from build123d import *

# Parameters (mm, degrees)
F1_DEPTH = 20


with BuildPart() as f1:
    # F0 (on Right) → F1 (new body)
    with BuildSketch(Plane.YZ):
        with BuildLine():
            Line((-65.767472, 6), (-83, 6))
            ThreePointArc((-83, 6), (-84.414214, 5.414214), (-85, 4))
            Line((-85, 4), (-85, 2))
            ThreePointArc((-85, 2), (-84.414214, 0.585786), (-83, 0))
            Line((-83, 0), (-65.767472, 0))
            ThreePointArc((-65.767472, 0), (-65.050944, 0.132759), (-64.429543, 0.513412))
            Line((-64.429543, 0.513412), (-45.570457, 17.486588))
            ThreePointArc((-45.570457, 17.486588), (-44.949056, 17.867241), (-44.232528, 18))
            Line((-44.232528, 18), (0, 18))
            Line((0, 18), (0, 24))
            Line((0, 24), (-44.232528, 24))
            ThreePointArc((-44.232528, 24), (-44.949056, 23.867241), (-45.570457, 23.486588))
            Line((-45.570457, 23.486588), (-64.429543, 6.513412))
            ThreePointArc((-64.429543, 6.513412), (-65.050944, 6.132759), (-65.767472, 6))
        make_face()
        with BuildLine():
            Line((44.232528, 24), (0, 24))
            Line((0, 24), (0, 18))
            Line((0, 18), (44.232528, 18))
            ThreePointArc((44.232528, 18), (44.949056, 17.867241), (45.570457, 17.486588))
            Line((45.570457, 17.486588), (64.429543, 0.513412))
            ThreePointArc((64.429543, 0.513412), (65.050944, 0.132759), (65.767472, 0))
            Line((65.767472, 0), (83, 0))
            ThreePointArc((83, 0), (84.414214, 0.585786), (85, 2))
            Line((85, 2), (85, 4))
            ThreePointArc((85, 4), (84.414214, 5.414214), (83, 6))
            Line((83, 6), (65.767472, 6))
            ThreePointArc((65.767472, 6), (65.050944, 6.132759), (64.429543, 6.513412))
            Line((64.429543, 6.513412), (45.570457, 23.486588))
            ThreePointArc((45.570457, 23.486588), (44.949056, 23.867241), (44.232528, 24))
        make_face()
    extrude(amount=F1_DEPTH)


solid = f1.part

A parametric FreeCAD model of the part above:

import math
import FreeCAD as App
import Part
import Sketcher
Q = App.Units.Quantity

doc = App.newDocument("Part")
body = doc.addObject("PartDesign::Body", "Body")

# Sketch on YZ plane
sketch1 = doc.addObject("Sketcher::SketchObject", "Sketch")
body.addObject(sketch1)
sketch1.AttachmentSupport = (doc.YZ_Plane, [""])
sketch1.MapMode = "FlatFace"
sketch1.addGeometry(Part.LineSegment(App.Vector(-65.8, 6, 0), App.Vector(-83, 6, 0)), False)
sketch1.addGeometry(Part.ArcOfCircle(Part.Circle(App.Vector(-83, 4, 0), App.Vector(0, 0, 1), 2), math.radians(90), math.radians(180)), False)
sketch1.addGeometry(Part.LineSegment(App.Vector(-85, 4, 0), App.Vector(-85, 2, 0)), False)
sketch1.addGeometry(Part.ArcOfCircle(Part.Circle(App.Vector(-83, 2, 0), App.Vector(0, 0, 1), 2), math.radians(180), math.radians(270)), False)
sketch1.addGeometry(Part.LineSegment(App.Vector(-83, 0, 0), App.Vector(-65.8, 0, 0)), False)
sketch1.addGeometry(Part.ArcOfCircle(Part.Circle(App.Vector(-65.8, 2, 0), App.Vector(0, 0, 1), 2), math.radians(-90), math.radians(-48)), False)
sketch1.addGeometry(Part.LineSegment(App.Vector(-64.4, 0.5, 0), App.Vector(-45.6, 17.5, 0)), False)
sketch1.addGeometry(Part.ArcOfCircle(Part.Circle(App.Vector(-44.2, 16, 0), App.Vector(0, 0, 1), 2), math.radians(90), math.radians(132)), False)
sketch1.addGeometry(Part.LineSegment(App.Vector(-44.2, 18, 0), App.Vector(44.2, 18, 0)), False)
sketch1.addGeometry(Part.ArcOfCircle(Part.Circle(App.Vector(44.2, 16, 0), App.Vector(0, 0, 1), 2), math.radians(48), math.radians(90)), False)
sketch1.addGeometry(Part.LineSegment(App.Vector(45.6, 17.5, 0), App.Vector(64.4, 0.5, 0)), False)
sketch1.addGeometry(Part.ArcOfCircle(Part.Circle(App.Vector(65.8, 2, 0), App.Vector(0, 0, 1), 2), math.radians(-132), math.radians(-90)), False)
sketch1.addGeometry(Part.LineSegment(App.Vector(65.8, 0, 0), App.Vector(83, 0, 0)), False)
sketch1.addGeometry(Part.ArcOfCircle(Part.Circle(App.Vector(83, 2, 0), App.Vector(0, 0, 1), 2), math.radians(-90), math.radians(0)), False)
sketch1.addGeometry(Part.LineSegment(App.Vector(85, 2, 0), App.Vector(85, 4, 0)), False)
sketch1.addGeometry(Part.ArcOfCircle(Part.Circle(App.Vector(83, 4, 0), App.Vector(0, 0, 1), 2), math.radians(0), math.radians(90)), False)
sketch1.addGeometry(Part.LineSegment(App.Vector(83, 6, 0), App.Vector(65.8, 6, 0)), False)
sketch1.addGeometry(Part.ArcOfCircle(Part.Circle(App.Vector(65.8, 8, 0), App.Vector(0, 0, 1), 2), math.radians(-132), math.radians(-90)), False)
sketch1.addGeometry(Part.LineSegment(App.Vector(64.4, 6.5, 0), App.Vector(45.6, 23.5, 0)), False)
sketch1.addGeometry(Part.ArcOfCircle(Part.Circle(App.Vector(44.2, 22, 0), App.Vector(0, 0, 1), 2), math.radians(48), math.radians(90)), False)
sketch1.addGeometry(Part.LineSegment(App.Vector(44.2, 24, 0), App.Vector(-44.2, 24, 0)), False)
sketch1.addGeometry(Part.ArcOfCircle(Part.Circle(App.Vector(-44.2, 22, 0), App.Vector(0, 0, 1), 2), math.radians(90), math.radians(132)), False)
sketch1.addGeometry(Part.LineSegment(App.Vector(-45.6, 23.5, 0), App.Vector(-64.4, 6.5, 0)), False)
sketch1.addGeometry(Part.ArcOfCircle(Part.Circle(App.Vector(-65.8, 8, 0), App.Vector(0, 0, 1), 2), math.radians(-90), math.radians(-48)), False)
sketch1.addConstraint(Sketcher.Constraint("Tangent", 0, 2, 1, 1))
sketch1.addConstraint(Sketcher.Constraint("Tangent", 1, 2, 2, 1))
sketch1.addConstraint(Sketcher.Constraint("Tangent", 2, 2, 3, 1))
sketch1.addConstraint(Sketcher.Constraint("Tangent", 3, 2, 4, 1))
sketch1.addConstraint(Sketcher.Constraint("Tangent", 4, 2, 5, 1))
sketch1.addConstraint(Sketcher.Constraint("Tangent", 5, 2, 6, 1))
sketch1.addConstraint(Sketcher.Constraint("Tangent", 6, 2, 7, 2))
sketch1.addConstraint(Sketcher.Constraint("Tangent", 7, 1, 8, 1))
sketch1.addConstraint(Sketcher.Constraint("Tangent", 8, 2, 9, 2))
sketch1.addConstraint(Sketcher.Constraint("Tangent", 9, 1, 10, 1))
sketch1.addConstraint(Sketcher.Constraint("Tangent", 10, 2, 11, 1))
sketch1.addConstraint(Sketcher.Constraint("Tangent", 11, 2, 12, 1))
sketch1.addConstraint(Sketcher.Constraint("Tangent", 12, 2, 13, 1))
sketch1.addConstraint(Sketcher.Constraint("Tangent", 13, 2, 14, 1))
sketch1.addConstraint(Sketcher.Constraint("Tangent", 14, 2, 15, 1))
sketch1.addConstraint(Sketcher.Constraint("Tangent", 15, 2, 16, 1))
sketch1.addConstraint(Sketcher.Constraint("Tangent", 16, 2, 17, 2))
sketch1.addConstraint(Sketcher.Constraint("Tangent", 17, 1, 18, 1))
sketch1.addConstraint(Sketcher.Constraint("Tangent", 18, 2, 19, 1))
sketch1.addConstraint(Sketcher.Constraint("Tangent", 19, 2, 20, 1))
sketch1.addConstraint(Sketcher.Constraint("Tangent", 20, 2, 21, 1))
sketch1.addConstraint(Sketcher.Constraint("Tangent", 21, 2, 22, 1))
sketch1.addConstraint(Sketcher.Constraint("Tangent", 22, 2, 23, 2))
sketch1.addConstraint(Sketcher.Constraint("Tangent", 23, 1, 0, 1))
sketch1.addConstraint(Sketcher.Constraint("Horizontal", 0))
sketch1.addConstraint(Sketcher.Constraint("Vertical", 2))
sketch1.addConstraint(Sketcher.Constraint("Horizontal", 4))
sketch1.addConstraint(Sketcher.Constraint("Horizontal", 8))
sketch1.addConstraint(Sketcher.Constraint("Horizontal", 12))
sketch1.addConstraint(Sketcher.Constraint("Vertical", 14))
sketch1.addConstraint(Sketcher.Constraint("Horizontal", 16))
sketch1.addConstraint(Sketcher.Constraint("Horizontal", 20))
sketch1.addConstraint(Sketcher.Constraint("Equal", 1, 3))
sketch1.addConstraint(Sketcher.Constraint("Equal", 5, 7))
sketch1.addConstraint(Sketcher.Constraint("Equal", 7, 9))
sketch1.addConstraint(Sketcher.Constraint("Equal", 9, 11))
sketch1.addConstraint(Sketcher.Constraint("Equal", 3, 13))
sketch1.addConstraint(Sketcher.Constraint("Equal", 13, 15))
sketch1.addConstraint(Sketcher.Constraint("Equal", 11, 17))
sketch1.addConstraint(Sketcher.Constraint("Equal", 17, 19))
sketch1.addConstraint(Sketcher.Constraint("Equal", 19, 21))
sketch1.addConstraint(Sketcher.Constraint("Equal", 21, 23))
sketch1.addConstraint(Sketcher.Constraint("Symmetric", 4, 2, 11, 2, -1, 1))
sketch1.addConstraint(Sketcher.Constraint("Symmetric", 3, 3, 13, 3, -2))
sketch1.addConstraint(Sketcher.Constraint("Symmetric", 17, 3, 23, 3, -2))
sketch1.addConstraint(Sketcher.Constraint("Parallel", 10, 18))
sketch1.addConstraint(Sketcher.Constraint("Parallel", 6, 22))
sketch1.addConstraint(Sketcher.Constraint("Horizontal", 6, 2, 9, 1))
sketch1.addConstraint(Sketcher.Constraint("Vertical", 11, 3, 17, 3))
sketch1.addConstraint(Sketcher.Constraint("Vertical", 9, 3, 19, 3))
sketch1.addConstraint(Sketcher.Constraint("Radius", 1, Q("1.999999 mm")))
sketch1.addConstraint(Sketcher.Constraint("DistanceY", 2, 2, 2, 1, Q("2 mm")))
sketch1.addConstraint(Sketcher.Constraint("DistanceX", 1, 3, -1, 1, Q("83.000001 mm")))
sketch1.addConstraint(Sketcher.Constraint("DistanceY", -1, 1, 7, 1, Q("18 mm")))
sketch1.addConstraint(Sketcher.Constraint("DistanceX", 5, 3, 9, 3, Q("110 mm")))
sketch1.addConstraint(Sketcher.Constraint("Radius", 5, Q("1.999991 mm")))
sketch1.addConstraint(Sketcher.Constraint("DistanceX", 0, 2, 0, 1, Q("17.232528 mm")))
pad1 = doc.addObject("PartDesign::Pad", "Pad")
body.addObject(pad1)
pad1.Profile = sketch1
pad1.Length = 20

doc.recompute()
